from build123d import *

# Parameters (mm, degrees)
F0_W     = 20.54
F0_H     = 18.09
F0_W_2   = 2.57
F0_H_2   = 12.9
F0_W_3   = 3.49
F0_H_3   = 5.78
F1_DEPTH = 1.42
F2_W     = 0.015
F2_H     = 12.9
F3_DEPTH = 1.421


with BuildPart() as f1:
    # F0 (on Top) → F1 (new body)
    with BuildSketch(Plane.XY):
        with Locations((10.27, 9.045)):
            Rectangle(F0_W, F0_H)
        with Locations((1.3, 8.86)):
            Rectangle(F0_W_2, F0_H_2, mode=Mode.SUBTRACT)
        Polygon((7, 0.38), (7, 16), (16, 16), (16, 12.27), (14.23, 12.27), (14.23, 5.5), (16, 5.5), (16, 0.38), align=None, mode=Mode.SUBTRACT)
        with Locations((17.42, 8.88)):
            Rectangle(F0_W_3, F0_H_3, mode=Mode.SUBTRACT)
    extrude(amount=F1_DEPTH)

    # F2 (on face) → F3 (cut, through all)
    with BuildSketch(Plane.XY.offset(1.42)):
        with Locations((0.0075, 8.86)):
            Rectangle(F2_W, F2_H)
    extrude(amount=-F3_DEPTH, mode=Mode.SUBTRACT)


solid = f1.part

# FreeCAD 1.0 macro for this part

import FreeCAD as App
import Part
import Sketcher

V = App.Vector

doc = App.newDocument("Part")
body = doc.addObject("PartDesign::Body", "Body")

# Sketch on XY plane
sketch1 = body.newObject("Sketcher::SketchObject", "Sketch")
sketch1.AttachmentSupport = (doc.getObject("XY_Plane"), [""])
sketch1.MapMode = "FlatFace"
sketch1.addGeometry(Part.LineSegment(V(0, 18.1, 0), V(0, 0, 0)), False)
sketch1.addGeometry(Part.LineSegment(V(0, 0, 0), V(20.5, 0, 0)), False)
sketch1.addGeometry(Part.LineSegment(V(20.5, 0, 0), V(20.5, 18.1, 0)), False)
sketch1.addGeometry(Part.LineSegment(V(20.5, 18.1, 0), V(0, 18.1, 0)), False)
sketch1.addGeometry(Part.LineSegment(V(16, 0.4, 0), V(7, 0.4, 0)), False)
sketch1.addGeometry(Part.LineSegment(V(7, 0.4, 0), V(7, 16, 0)), False)
sketch1.addGeometry(Part.LineSegment(V(7, 16, 0), V(16, 16, 0)), False)
sketch1.addGeometry(Part.LineSegment(V(16, 16, 0), V(16, 12.3, 0)), False)
sketch1.addGeometry(Part.LineSegment(V(16, 12.3, 0), V(14.2, 12.3, 0)), False)
sketch1.addGeometry(Part.LineSegment(V(14.2, 12.3, 0), V(14.2, 5.5, 0)), False)
sketch1.addGeometry(Part.LineSegment(V(14.2, 5.5, 0), V(16, 5.5, 0)), False)
sketch1.addGeometry(Part.LineSegment(V(16, 5.5, 0), V(16, 0.4, 0)), False)
sketch1.addGeometry(Part.LineSegment(V(2.6, 2.4, 0), V(0, 2.4, 0)), False)
sketch1.addGeometry(Part.LineSegment(V(0, 2.4, 0), V(0, 15.3, 0)), False)
sketch1.addGeometry(Part.LineSegment(V(0, 15.3, 0), V(2.6, 15.3, 0)), False)
sketch1.addGeometry(Part.LineSegment(V(2.6, 15.3, 0), V(2.6, 2.4, 0)), False)
sketch1.addGeometry(Part.LineSegment(V(19.2, 6, 0), V(15.7, 6, 0)), False)
sketch1.addGeometry(Part.LineSegment(V(15.7, 6, 0), V(15.7, 11.8, 0)), False)
sketch1.addGeometry(Part.LineSegment(V(15.7, 11.8, 0), V(19.2, 11.8, 0)), False)
sketch1.addGeometry(Part.LineSegment(V(19.2, 11.8, 0), V(19.2, 6, 0)), False)
sketch1.addConstraint(Sketcher.Constraint("Coincident", 0, 2, 1, 1))
sketch1.addConstraint(Sketcher.Constraint("Coincident", 1, 2, 2, 1))
sketch1.addConstraint(Sketcher.Constraint("Coincident", 2, 2, 3, 1))
sketch1.addConstraint(Sketcher.Constraint("Coincident", 3, 2, 0, 1))
sketch1.addConstraint(Sketcher.Constraint("Coincident", 4, 2, 5, 1))
sketch1.addConstraint(Sketcher.Constraint("Coincident", 5, 2, 6, 1))
sketch1.addConstraint(Sketcher.Constraint("Coincident", 6, 2, 7, 1))
sketch1.addConstraint(Sketcher.Constraint("Coincident", 7, 2, 8, 1))
sketch1.addConstraint(Sketcher.Constraint("Coincident", 8, 2, 9, 1))
sketch1.addConstraint(Sketcher.Constraint("Coincident", 9, 2, 10, 1))
sketch1.addConstraint(Sketcher.Constraint("Coincident", 10, 2, 11, 1))
sketch1.addConstraint(Sketcher.Constraint("Coincident", 11, 2, 4, 1))
sketch1.addConstraint(Sketcher.Constraint("Coincident", 12, 2, 13, 1))
sketch1.addConstraint(Sketcher.Constraint("Coincident", 13, 2, 14, 1))
sketch1.addConstraint(Sketcher.Constraint("Coincident", 14, 2, 15, 1))
sketch1.addConstraint(Sketcher.Constraint("Coincident", 15, 2, 12, 1))
sketch1.addConstraint(Sketcher.Constraint("Coincident", 16, 2, 17, 1))
sketch1.addConstraint(Sketcher.Constraint("Coincident", 17, 2, 18, 1))
sketch1.addConstraint(Sketcher.Constraint("Coincident", 18, 2, 19, 1))
sketch1.addConstraint(Sketcher.Constraint("Coincident", 19, 2, 16, 1))
sketch1.addConstraint(Sketcher.Constraint("Vertical", 0))
sketch1.addConstraint(Sketcher.Constraint("Horizontal", 1))
sketch1.addConstraint(Sketcher.Constraint("Vertical", 2))
sketch1.addConstraint(Sketcher.Constraint("Horizontal", 3))
sketch1.addConstraint(Sketcher.Constraint("Horizontal", 4))
sketch1.addConstraint(Sketcher.Constraint("Vertical", 5))
sketch1.addConstraint(Sketcher.Constraint("Horizontal", 6))
sketch1.addConstraint(Sketcher.Constraint("Vertical", 7))
sketch1.addConstraint(Sketcher.Constraint("Horizontal", 8))
sketch1.addConstraint(Sketcher.Constraint("Vertical", 9))
sketch1.addConstraint(Sketcher.Constraint("Horizontal", 10))
sketch1.addConstraint(Sketcher.Constraint("Vertical", 11))
sketch1.addConstraint(Sketcher.Constraint("Horizontal", 12))
sketch1.addConstraint(Sketcher.Constraint("Vertical", 13))
sketch1.addConstraint(Sketcher.Constraint("Horizontal", 14))
sketch1.addConstraint(Sketcher.Constraint("Vertical", 15))
sketch1.addConstraint(Sketcher.Constraint("Horizontal", 16))
sketch1.addConstraint(Sketcher.Constraint("Vertical", 17))
sketch1.addConstraint(Sketcher.Constraint("Horizontal", 18))
sketch1.addConstraint(Sketcher.Constraint("Vertical", 19))
sketch1.addConstraint(Sketcher.Constraint("Coincident", 0, 2, -1, 1))
sketch1.addConstraint(Sketcher.Constraint("Vertical", 7, 2, 10, 2))
sketch1.addConstraint(Sketcher.Constraint("DistanceX", 4, 2, 4, 1, 9.0))
sketch1.addConstraint(Sketcher.Constraint("DistanceY", 13, 1, 13, 2, 12.9))
sketch1.addConstraint(Sketcher.Constraint("DistanceX", -1, 1, 4, 2, 7.0))
sketch1.addConstraint(Sketcher.Constraint("DistanceY", -1, 1, 5, 2, 16.0))
sketch1.addConstraint(Sketcher.Constraint("DistanceX", 1, 1, 1, 2, 20.54))
sketch1.addConstraint(Sketcher.Constraint("DistanceX", 8, 2, 8, 1, 1.77))
sketch1.addConstraint(Sketcher.Constraint("DistanceX", 12, 2, 12, 1, 2.57))
sketch1.addConstraint(Sketcher.Constraint("DistanceX", 16, 2, 16, 1, 3.49))
sketch1.addConstraint(Sketcher.Constraint("DistanceY", 0, 2, 0, 1, 18.09))
sketch1.addConstraint(Sketcher.Constraint("DistanceY", 5, 1, 5, 2, 15.62))
sketch1.addConstraint(Sketcher.Constraint("DistanceY", 7, 2, 7, 1, 3.73))
sketch1.addConstraint(Sketcher.Constraint("DistanceY", 9, 2, 9, 1, 6.77))
sketch1.addConstraint(Sketcher.Constraint("DistanceY", 17, 1, 17, 2, 5.78))
sketch1.addConstraint(Sketcher.Constraint("DistanceY", 17, 2, 7, 2, 0.5))
sketch1.addConstraint(Sketcher.Constraint("DistanceY", -1, 1, 12, 2, 2.41))
sketch1.addConstraint(Sketcher.Constraint("DistanceX", -1, 1, 12, 2, 0.015))
sketch1.addConstraint(Sketcher.Constraint("DistanceX", -1, 1, 16, 2, 15.675))
pad1 = body.newObject("PartDesign::Pad", "Pad")
pad1.Profile = sketch1
pad1.Length = 1.42

# Sketch on XY plane
sketch2 = body.newObject("Sketcher::SketchObject", "Sketch001")
sketch2.AttachmentSupport = (doc.getObject("XY_Plane"), [""])
sketch2.MapMode = "FlatFace"
sketch2.AttachmentOffset = App.Placement(V(0, 0, 1.42), App.Rotation())
sketch2.addGeometry(Part.LineSegment(V(0, 15.31, 0), V(0, 2.41, 0)), False)
sketch2.addGeometry(Part.LineSegment(V(0, 2.41, 0), V(0.015, 2.41, 0)), False)
sketch2.addGeometry(Part.LineSegment(V(0.015, 2.41, 0), V(0.015, 15.31, 0)), False)
sketch2.addGeometry(Part.LineSegment(V(0.015, 15.31, 0), V(0, 15.31, 0)), False)
sketch2.addConstraint(Sketcher.Constraint("Coincident", 0, 2, 1, 1))
sketch2.addConstraint(Sketcher.Constraint("Coincident", 1, 2, 2, 1))
sketch2.addConstraint(Sketcher.Constraint("Coincident", 2, 2, 3, 1))
sketch2.addConstraint(Sketcher.Constraint("Coincident", 3, 2, 0, 1))
sketch2.addConstraint(Sketcher.Constraint("Vertical", 0))
sketch2.addConstraint(Sketcher.Constraint("Horizontal", 1))
sketch2.addConstraint(Sketcher.Constraint("Vertical", 2))
sketch2.addConstraint(Sketcher.Constraint("Horizontal", 3))
sketch2.addConstraint(Sketcher.Constraint("PointOnObject", 0, 2, -2))
sketch2.addConstraint(Sketcher.Constraint("DistanceY", 0, 2, 0, 1, 12.9))
sketch2.addConstraint(Sketcher.Constraint("DistanceX", 1, 1, 1, 2, 0.015))
sketch2.addConstraint(Sketcher.Constraint("DistanceY", -1, 1, 0, 2, 2.41))
pocket1 = body.newObject("PartDesign::Pocket", "Pocket")
pocket1.Profile = sketch2
pocket1.Type = "ThroughAll"

doc.recompute()
